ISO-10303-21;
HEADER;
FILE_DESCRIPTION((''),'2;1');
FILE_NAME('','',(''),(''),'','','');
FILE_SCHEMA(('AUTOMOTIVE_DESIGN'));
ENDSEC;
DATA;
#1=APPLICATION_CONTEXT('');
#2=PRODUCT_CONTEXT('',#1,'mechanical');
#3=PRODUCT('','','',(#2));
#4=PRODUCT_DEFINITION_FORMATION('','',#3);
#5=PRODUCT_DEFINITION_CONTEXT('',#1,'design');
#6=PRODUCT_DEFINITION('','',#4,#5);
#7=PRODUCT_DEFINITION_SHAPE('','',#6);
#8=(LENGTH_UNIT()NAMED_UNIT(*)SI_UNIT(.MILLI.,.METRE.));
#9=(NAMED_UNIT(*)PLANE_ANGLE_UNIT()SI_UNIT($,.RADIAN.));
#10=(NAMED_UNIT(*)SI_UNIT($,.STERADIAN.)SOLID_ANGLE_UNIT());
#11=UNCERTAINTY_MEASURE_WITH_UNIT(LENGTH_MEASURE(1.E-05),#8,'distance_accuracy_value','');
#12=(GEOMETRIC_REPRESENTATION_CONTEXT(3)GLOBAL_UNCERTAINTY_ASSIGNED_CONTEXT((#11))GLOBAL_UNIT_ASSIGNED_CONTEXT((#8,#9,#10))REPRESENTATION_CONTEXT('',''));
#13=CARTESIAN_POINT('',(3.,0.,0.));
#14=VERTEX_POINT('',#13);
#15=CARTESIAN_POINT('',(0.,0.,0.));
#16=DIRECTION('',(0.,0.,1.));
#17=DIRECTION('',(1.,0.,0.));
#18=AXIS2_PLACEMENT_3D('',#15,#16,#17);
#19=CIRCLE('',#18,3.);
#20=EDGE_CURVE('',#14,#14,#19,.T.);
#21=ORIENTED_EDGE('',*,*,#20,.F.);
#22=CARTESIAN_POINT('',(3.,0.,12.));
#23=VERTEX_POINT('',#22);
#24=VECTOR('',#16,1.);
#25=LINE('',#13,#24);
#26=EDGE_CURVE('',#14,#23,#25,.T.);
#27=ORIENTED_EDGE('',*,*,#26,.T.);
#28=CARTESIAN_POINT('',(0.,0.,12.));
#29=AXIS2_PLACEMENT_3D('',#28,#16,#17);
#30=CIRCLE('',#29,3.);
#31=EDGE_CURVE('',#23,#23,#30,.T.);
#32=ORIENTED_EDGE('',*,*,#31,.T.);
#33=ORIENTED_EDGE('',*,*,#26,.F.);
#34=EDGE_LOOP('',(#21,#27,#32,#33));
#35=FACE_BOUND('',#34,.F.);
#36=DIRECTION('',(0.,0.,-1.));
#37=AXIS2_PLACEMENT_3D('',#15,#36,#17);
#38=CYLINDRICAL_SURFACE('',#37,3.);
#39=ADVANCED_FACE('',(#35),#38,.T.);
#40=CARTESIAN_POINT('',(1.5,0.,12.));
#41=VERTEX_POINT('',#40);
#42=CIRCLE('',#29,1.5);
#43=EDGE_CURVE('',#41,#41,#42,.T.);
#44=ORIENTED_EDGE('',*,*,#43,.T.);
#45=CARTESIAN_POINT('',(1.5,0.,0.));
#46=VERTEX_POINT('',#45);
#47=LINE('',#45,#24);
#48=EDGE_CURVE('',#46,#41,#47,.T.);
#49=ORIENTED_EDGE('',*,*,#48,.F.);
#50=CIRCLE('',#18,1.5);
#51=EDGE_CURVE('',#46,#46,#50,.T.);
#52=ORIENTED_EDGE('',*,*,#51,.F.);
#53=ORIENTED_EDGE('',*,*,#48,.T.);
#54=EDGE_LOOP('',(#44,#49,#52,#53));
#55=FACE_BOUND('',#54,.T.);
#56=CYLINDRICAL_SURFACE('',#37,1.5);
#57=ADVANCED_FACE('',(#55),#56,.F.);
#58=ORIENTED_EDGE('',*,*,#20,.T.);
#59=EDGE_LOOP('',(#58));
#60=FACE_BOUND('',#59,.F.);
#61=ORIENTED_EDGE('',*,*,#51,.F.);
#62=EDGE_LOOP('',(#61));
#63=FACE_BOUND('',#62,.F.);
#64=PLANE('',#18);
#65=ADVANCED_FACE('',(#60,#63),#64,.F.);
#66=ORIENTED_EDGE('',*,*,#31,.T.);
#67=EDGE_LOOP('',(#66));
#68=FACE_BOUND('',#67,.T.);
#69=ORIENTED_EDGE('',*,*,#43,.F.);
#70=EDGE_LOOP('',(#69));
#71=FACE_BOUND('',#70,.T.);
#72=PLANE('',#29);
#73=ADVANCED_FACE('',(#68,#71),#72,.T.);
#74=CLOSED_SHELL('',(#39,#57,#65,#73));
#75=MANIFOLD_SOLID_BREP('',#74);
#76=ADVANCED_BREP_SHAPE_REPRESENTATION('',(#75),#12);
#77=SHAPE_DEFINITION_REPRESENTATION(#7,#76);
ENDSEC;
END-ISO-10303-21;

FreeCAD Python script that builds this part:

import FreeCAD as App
import Part
import Sketcher
from FreeCAD import Vector

doc = App.newDocument("Part")
body = doc.addObject("PartDesign::Body", "Body")

# Sketch on XY plane
sketch1 = body.newObject("Sketcher::SketchObject", "Sketch")
sketch1.AttachmentSupport = (doc.getObject("XY_Plane"), [""])
sketch1.MapMode = "FlatFace"
sketch1.addGeometry(Part.Circle(Vector(0, 0, 0), Vector(0, 0, 1), 3), False)
sketch1.addGeometry(Part.Circle(Vector(0, 0, 0), Vector(0, 0, 1), 1.5), False)
sketch1.addConstraint(Sketcher.Constraint("Coincident", 0, 3, -1, 1))
sketch1.addConstraint(Sketcher.Constraint("Coincident", 1, 3, -1, 1))
sketch1.addConstraint(Sketcher.Constraint("Diameter", 0, 6.0))
sketch1.addConstraint(Sketcher.Constraint("Diameter", 1, 3.0))
pad1 = body.newObject("PartDesign::Pad", "Pad")
pad1.Profile = sketch1
pad1.Length = 12

doc.recompute()
